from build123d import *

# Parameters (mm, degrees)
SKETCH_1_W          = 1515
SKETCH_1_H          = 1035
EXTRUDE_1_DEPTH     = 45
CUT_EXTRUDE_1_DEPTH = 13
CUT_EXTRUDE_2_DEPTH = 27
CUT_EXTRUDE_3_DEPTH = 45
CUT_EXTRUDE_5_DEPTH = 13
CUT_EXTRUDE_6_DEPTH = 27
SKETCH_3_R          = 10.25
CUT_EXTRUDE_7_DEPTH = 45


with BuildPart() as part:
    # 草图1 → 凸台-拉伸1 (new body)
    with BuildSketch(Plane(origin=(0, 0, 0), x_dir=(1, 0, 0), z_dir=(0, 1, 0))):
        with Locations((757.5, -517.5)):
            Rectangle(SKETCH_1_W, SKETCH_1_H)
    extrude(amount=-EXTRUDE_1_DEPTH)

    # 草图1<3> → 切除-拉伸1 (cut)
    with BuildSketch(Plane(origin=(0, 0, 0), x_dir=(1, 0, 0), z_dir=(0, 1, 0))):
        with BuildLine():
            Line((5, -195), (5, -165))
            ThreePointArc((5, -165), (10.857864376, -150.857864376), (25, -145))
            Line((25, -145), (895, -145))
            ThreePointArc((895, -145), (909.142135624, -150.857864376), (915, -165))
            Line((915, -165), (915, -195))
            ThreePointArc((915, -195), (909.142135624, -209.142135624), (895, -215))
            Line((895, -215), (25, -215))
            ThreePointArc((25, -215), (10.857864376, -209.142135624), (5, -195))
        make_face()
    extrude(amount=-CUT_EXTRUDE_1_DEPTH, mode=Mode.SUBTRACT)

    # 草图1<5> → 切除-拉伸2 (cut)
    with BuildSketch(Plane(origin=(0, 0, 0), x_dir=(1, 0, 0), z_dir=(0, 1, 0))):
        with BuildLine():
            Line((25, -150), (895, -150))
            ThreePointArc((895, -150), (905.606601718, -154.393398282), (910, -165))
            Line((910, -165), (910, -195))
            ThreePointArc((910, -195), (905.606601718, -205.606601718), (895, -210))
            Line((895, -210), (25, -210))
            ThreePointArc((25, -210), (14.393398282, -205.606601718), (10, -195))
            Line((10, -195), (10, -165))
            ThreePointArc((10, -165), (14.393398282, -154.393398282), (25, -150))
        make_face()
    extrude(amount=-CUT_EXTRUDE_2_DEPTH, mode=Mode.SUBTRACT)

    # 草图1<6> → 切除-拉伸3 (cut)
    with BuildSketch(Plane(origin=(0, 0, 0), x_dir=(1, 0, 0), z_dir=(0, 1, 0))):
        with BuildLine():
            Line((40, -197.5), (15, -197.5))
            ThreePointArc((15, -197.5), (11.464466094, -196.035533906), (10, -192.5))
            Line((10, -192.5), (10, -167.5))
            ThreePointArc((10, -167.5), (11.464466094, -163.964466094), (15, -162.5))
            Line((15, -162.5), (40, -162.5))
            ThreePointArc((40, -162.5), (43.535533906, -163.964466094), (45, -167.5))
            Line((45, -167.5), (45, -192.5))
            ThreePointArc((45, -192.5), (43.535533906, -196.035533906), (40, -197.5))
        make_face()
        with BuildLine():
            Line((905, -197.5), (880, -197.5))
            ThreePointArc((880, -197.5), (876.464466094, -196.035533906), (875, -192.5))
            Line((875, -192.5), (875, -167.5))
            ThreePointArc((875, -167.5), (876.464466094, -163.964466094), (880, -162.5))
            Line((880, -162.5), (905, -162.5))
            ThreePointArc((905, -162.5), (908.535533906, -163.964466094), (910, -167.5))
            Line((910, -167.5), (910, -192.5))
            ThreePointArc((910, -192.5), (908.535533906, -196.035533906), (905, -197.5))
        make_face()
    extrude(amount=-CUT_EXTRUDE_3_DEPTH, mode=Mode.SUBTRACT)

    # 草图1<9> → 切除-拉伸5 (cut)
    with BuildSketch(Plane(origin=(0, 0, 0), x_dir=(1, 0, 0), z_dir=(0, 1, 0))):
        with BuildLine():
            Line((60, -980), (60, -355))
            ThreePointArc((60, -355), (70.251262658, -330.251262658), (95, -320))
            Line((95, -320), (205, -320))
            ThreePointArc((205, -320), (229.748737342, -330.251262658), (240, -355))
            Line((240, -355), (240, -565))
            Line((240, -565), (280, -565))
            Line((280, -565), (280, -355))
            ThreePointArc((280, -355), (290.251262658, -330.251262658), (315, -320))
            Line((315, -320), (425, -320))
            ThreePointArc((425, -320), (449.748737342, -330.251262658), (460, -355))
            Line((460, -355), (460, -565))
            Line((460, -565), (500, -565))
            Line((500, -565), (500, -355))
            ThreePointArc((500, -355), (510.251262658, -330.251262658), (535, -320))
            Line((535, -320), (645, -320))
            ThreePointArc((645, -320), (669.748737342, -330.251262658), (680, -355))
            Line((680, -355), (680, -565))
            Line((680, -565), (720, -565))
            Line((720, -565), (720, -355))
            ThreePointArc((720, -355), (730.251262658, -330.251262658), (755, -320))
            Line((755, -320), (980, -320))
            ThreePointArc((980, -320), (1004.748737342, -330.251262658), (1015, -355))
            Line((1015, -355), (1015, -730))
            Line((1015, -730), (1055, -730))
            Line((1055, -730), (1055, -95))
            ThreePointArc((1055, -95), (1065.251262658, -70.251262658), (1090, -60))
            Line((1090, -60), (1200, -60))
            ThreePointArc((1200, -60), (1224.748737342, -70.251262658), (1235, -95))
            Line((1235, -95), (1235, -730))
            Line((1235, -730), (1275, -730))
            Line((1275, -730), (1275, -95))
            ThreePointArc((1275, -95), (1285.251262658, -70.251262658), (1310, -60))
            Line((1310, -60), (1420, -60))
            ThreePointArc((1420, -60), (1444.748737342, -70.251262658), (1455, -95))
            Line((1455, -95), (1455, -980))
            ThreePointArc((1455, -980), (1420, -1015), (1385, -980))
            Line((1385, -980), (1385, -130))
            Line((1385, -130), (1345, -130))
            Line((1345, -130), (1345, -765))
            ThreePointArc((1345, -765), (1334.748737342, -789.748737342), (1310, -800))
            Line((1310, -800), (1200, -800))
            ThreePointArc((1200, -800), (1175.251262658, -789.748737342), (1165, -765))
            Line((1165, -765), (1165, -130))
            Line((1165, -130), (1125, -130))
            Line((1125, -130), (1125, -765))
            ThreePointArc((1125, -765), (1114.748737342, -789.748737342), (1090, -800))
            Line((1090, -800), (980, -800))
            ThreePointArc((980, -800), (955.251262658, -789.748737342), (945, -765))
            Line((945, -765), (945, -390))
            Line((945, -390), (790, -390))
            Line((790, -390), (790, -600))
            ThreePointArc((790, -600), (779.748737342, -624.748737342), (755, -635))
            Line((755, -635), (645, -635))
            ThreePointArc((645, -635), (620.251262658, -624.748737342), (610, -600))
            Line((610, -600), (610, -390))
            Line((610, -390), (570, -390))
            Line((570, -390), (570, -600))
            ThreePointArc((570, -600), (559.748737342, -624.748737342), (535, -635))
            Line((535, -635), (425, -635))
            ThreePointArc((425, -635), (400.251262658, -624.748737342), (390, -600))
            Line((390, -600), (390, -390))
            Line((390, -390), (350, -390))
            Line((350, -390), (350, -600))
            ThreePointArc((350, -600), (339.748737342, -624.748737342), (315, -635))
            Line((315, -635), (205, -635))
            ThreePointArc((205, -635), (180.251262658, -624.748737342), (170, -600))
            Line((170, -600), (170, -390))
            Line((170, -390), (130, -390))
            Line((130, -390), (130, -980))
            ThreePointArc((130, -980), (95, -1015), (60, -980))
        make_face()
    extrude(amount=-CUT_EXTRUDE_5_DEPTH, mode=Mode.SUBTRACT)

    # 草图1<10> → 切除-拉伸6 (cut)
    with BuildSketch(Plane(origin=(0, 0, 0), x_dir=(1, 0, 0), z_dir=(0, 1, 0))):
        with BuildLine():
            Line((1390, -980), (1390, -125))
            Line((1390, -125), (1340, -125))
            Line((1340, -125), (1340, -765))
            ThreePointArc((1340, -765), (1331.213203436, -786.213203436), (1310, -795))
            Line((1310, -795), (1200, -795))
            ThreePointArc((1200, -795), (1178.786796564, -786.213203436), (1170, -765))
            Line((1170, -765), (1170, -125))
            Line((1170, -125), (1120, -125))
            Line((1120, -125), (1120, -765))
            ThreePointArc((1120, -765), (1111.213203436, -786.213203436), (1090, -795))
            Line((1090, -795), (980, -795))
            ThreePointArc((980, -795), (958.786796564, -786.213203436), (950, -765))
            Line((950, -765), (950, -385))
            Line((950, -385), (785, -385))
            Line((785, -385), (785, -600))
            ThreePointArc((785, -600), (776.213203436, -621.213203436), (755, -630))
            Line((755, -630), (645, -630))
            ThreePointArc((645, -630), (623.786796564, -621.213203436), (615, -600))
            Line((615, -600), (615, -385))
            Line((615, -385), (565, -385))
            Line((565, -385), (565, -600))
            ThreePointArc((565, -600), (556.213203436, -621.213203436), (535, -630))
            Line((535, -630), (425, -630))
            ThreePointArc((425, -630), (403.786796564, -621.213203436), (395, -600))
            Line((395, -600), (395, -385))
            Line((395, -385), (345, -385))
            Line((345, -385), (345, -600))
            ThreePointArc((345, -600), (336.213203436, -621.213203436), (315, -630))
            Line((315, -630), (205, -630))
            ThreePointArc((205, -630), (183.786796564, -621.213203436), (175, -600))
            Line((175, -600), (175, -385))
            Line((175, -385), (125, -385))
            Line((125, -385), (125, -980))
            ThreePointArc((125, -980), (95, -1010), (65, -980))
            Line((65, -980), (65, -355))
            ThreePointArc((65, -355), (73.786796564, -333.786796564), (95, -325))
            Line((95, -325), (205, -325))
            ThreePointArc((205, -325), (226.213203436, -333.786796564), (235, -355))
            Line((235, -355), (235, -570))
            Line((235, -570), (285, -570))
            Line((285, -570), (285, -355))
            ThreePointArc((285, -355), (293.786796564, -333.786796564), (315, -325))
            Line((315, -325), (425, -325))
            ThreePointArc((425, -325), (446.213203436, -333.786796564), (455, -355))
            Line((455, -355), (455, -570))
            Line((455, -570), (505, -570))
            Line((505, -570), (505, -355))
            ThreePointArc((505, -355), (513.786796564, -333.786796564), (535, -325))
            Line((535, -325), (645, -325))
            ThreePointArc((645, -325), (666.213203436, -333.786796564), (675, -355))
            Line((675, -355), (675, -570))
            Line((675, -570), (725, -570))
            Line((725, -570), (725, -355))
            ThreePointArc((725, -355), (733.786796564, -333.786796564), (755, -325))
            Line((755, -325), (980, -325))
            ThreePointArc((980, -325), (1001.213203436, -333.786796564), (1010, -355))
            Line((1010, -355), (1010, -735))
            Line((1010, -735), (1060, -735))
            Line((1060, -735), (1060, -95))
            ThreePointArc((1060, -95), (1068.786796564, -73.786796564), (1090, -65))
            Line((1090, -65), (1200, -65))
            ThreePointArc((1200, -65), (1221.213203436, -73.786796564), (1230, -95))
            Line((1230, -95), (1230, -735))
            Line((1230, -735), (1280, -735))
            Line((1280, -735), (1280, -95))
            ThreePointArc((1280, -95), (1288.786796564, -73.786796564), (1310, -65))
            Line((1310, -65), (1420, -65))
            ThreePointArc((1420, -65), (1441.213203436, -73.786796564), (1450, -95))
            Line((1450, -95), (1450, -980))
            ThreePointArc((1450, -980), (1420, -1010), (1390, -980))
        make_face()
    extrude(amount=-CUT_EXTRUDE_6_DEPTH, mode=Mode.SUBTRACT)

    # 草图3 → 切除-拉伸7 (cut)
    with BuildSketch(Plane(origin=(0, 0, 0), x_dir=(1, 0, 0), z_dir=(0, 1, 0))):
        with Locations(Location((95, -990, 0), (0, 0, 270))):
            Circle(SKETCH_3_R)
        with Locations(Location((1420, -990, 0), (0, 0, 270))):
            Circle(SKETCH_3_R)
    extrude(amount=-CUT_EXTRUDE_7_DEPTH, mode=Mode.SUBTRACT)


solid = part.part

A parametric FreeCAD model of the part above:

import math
import FreeCAD as App
import Part
import Sketcher

V = App.Vector
Q = App.Units.Quantity


def add_polygon(sketch, points):
    """Adds a closed chain of lines whose ends are joined by coincident constraints."""
    first, n = sketch.GeometryCount, len(points)
    for a, b in zip(points, points[1:] + points[:1]):
        sketch.addGeometry(Part.LineSegment(App.Vector(*a, 0), App.Vector(*b, 0)), False)
    for i in range(n):
        sketch.addConstraint(Sketcher.Constraint("Coincident", first + i, 2, first + (i + 1) % n, 1))

doc = App.newDocument("Part")
body = doc.addObject("PartDesign::Body", "Body")

# Sketch on XZ plane
sketch1 = body.newObject("Sketcher::SketchObject", "Sketch")
sketch1.AttachmentSupport = (doc.getObject("XZ_Plane"), [""])
sketch1.MapMode = "FlatFace"
add_polygon(sketch1, [(0, 0), (0, 1035), (1515, 1035), (1515, 0)])  # lines 0-3
sketch1.addConstraint([
    Sketcher.Constraint("Vertical", 0),
    Sketcher.Constraint("Horizontal", 1),
    Sketcher.Constraint("Vertical", 2),
    Sketcher.Constraint("Horizontal", 3),
    Sketcher.Constraint("Coincident", 3, 2, -1, 1),
    Sketcher.Constraint("DistanceX", 1, 1, 1, 2, Q("1515 mm")),
    Sketcher.Constraint("DistanceY", 0, 1, 0, 2, Q("1035 mm")),
])
pad1 = body.newObject("PartDesign::Pad", "Pad")
pad1.Profile = sketch1
pad1.Length = 45

# Sketch on XZ plane
sketch2 = body.newObject("Sketcher::SketchObject", "Sketch001")
sketch2.AttachmentSupport = (doc.getObject("XZ_Plane"), [""])
sketch2.MapMode = "FlatFace"
sketch2.addGeometry([
    Part.LineSegment(V(5, 165, 0), V(5, 195, 0)),  # 0
    Part.ArcOfCircle(Part.Circle(V(25, 195, 0), V(0, 0, 1), 20), math.radians(90), math.radians(180)),  # 1
    Part.LineSegment(V(25, 215, 0), V(895, 215, 0)),  # 2
    Part.ArcOfCircle(Part.Circle(V(895, 195, 0), V(0, 0, 1), 20), math.radians(0), math.radians(90)),  # 3
    Part.LineSegment(V(915, 195, 0), V(915, 165, 0)),  # 4
    Part.ArcOfCircle(Part.Circle(V(895, 165, 0), V(0, 0, 1), 20), math.radians(-90), math.radians(0)),  # 5
    Part.LineSegment(V(895, 145, 0), V(25, 145, 0)),  # 6
    Part.ArcOfCircle(Part.Circle(V(25, 165, 0), V(0, 0, 1), 20), math.radians(180), math.radians(270)),  # 7
], False)
sketch2.addConstraint([
    Sketcher.Constraint("Tangent", 0, 2, 1, 2),
    Sketcher.Constraint("Tangent", 1, 1, 2, 1),
    Sketcher.Constraint("Tangent", 2, 2, 3, 2),
    Sketcher.Constraint("Tangent", 3, 1, 4, 1),
    Sketcher.Constraint("Tangent", 4, 2, 5, 2),
    Sketcher.Constraint("Tangent", 5, 1, 6, 1),
    Sketcher.Constraint("Tangent", 6, 2, 7, 2),
    Sketcher.Constraint("Tangent", 7, 1, 0, 1),
    Sketcher.Constraint("Vertical", 0),
    Sketcher.Constraint("Horizontal", 2),
    Sketcher.Constraint("Vertical", 4),
    Sketcher.Constraint("Horizontal", 6),
    Sketcher.Constraint("Equal", 1, 3),
    Sketcher.Constraint("Equal", 3, 5),
    Sketcher.Constraint("Equal", 5, 7),
    Sketcher.Constraint("Radius", 1, Q("20 mm")),
    Sketcher.Constraint("DistanceX", 2, 1, 2, 2, Q("870 mm")),
    Sketcher.Constraint("DistanceY", 0, 1, 0, 2, Q("30 mm")),
    Sketcher.Constraint("DistanceX", -1, 1, 1, 3, Q("25 mm")),
    Sketcher.Constraint("DistanceY", -1, 1, 1, 3, Q("195 mm")),
])
pocket1 = body.newObject("PartDesign::Pocket", "Pocket")
pocket1.Profile = sketch2
pocket1.Length = 13
pocket1.Reversed = True

# Sketch on XZ plane
sketch3 = body.newObject("Sketcher::SketchObject", "Sketch002")
sketch3.AttachmentSupport = (doc.getObject("XZ_Plane"), [""])
sketch3.MapMode = "FlatFace"
sketch3.addGeometry([
    Part.LineSegment(V(895, 150, 0), V(25, 150, 0)),  # 0
    Part.ArcOfCircle(Part.Circle(V(25, 165, 0), V(0, 0, 1), 15), math.radians(180), math.radians(270)),  # 1
    Part.LineSegment(V(10, 165, 0), V(10, 195, 0)),  # 2
    Part.ArcOfCircle(Part.Circle(V(25, 195, 0), V(0, 0, 1), 15), math.radians(90), math.radians(180)),  # 3
    Part.LineSegment(V(25, 210, 0), V(895, 210, 0)),  # 4
    Part.ArcOfCircle(Part.Circle(V(895, 195, 0), V(0, 0, 1), 15), math.radians(0), math.radians(90)),  # 5
    Part.LineSegment(V(910, 195, 0), V(910, 165, 0)),  # 6
    Part.ArcOfCircle(Part.Circle(V(895, 165, 0), V(0, 0, 1), 15), math.radians(-90), math.radians(0)),  # 7
], False)
sketch3.addConstraint([
    Sketcher.Constraint("Tangent", 0, 2, 1, 2),
    Sketcher.Constraint("Tangent", 1, 1, 2, 1),
    Sketcher.Constraint("Tangent", 2, 2, 3, 2),
    Sketcher.Constraint("Tangent", 3, 1, 4, 1),
    Sketcher.Constraint("Tangent", 4, 2, 5, 2),
    Sketcher.Constraint("Tangent", 5, 1, 6, 1),
    Sketcher.Constraint("Tangent", 6, 2, 7, 2),
    Sketcher.Constraint("Tangent", 7, 1, 0, 1),
    Sketcher.Constraint("Horizontal", 0),
    Sketcher.Constraint("Vertical", 2),
    Sketcher.Constraint("Horizontal", 4),
    Sketcher.Constraint("Vertical", 6),
    Sketcher.Constraint("Equal", 1, 3),
    Sketcher.Constraint("Equal", 3, 5),
    Sketcher.Constraint("Equal", 5, 7),
    Sketcher.Constraint("Radius", 1, Q("15 mm")),
    Sketcher.Constraint("DistanceX", 0, 2, 0, 1, Q("870 mm")),
    Sketcher.Constraint("DistanceY", 2, 1, 2, 2, Q("30 mm")),
    Sketcher.Constraint("DistanceX", -1, 1, 1, 3, Q("25 mm")),
    Sketcher.Constraint("DistanceY", -1, 1, 1, 3, Q("165 mm")),
])
pocket2 = body.newObject("PartDesign::Pocket", "Pocket001")
pocket2.Profile = sketch3
pocket2.Length = 27
pocket2.Reversed = True

# Sketch on XZ plane
sketch4 = body.newObject("Sketcher::SketchObject", "Sketch003")
sketch4.AttachmentSupport = (doc.getObject("XZ_Plane"), [""])
sketch4.MapMode = "FlatFace"
sketch4.addGeometry([
    Part.LineSegment(V(15, 198, 0), V(40, 198, 0)),  # 0
    Part.ArcOfCircle(Part.Circle(V(40, 192, 0), V(0, 0, 1), 5), math.radians(0), math.radians(90)),  # 1
    Part.LineSegment(V(45, 192, 0), V(45, 168, 0)),  # 2
    Part.ArcOfCircle(Part.Circle(V(40, 168, 0), V(0, 0, 1), 5), math.radians(-90), math.radians(0)),  # 3
    Part.LineSegment(V(40, 162, 0), V(15, 162, 0)),  # 4
    Part.ArcOfCircle(Part.Circle(V(15, 168, 0), V(0, 0, 1), 5), math.radians(180), math.radians(270)),  # 5
    Part.LineSegment(V(10, 168, 0), V(10, 192, 0)),  # 6
    Part.ArcOfCircle(Part.Circle(V(15, 192, 0), V(0, 0, 1), 5), math.radians(90), math.radians(180)),  # 7
    Part.LineSegment(V(880, 198, 0), V(905, 198, 0)),  # 8
    Part.ArcOfCircle(Part.Circle(V(905, 192, 0), V(0, 0, 1), 5), math.radians(0), math.radians(90)),  # 9
    Part.LineSegment(V(910, 192, 0), V(910, 168, 0)),  # 10
    Part.ArcOfCircle(Part.Circle(V(905, 168, 0), V(0, 0, 1), 5), math.radians(-90), math.radians(0)),  # 11
    Part.LineSegment(V(905, 162, 0), V(880, 162, 0)),  # 12
    Part.ArcOfCircle(Part.Circle(V(880, 168, 0), V(0, 0, 1), 5), math.radians(180), math.radians(270)),  # 13
    Part.LineSegment(V(875, 168, 0), V(875, 192, 0)),  # 14
    Part.ArcOfCircle(Part.Circle(V(880, 192, 0), V(0, 0, 1), 5), math.radians(90), math.radians(180)),  # 15
], False)
sketch4.addConstraint([
    Sketcher.Constraint("Tangent", 0, 2, 1, 2),
    Sketcher.Constraint("Tangent", 1, 1, 2, 1),
    Sketcher.Constraint("Tangent", 2, 2, 3, 2),
    Sketcher.Constraint("Tangent", 3, 1, 4, 1),
    Sketcher.Constraint("Tangent", 4, 2, 5, 2),
    Sketcher.Constraint("Tangent", 5, 1, 6, 1),
    Sketcher.Constraint("Tangent", 6, 2, 7, 2),
    Sketcher.Constraint("Tangent", 7, 1, 0, 1),
    Sketcher.Constraint("Tangent", 8, 2, 9, 2),
    Sketcher.Constraint("Tangent", 9, 1, 10, 1),
    Sketcher.Constraint("Tangent", 10, 2, 11, 2),
    Sketcher.Constraint("Tangent", 11, 1, 12, 1),
    Sketcher.Constraint("Tangent", 12, 2, 13, 2),
    Sketcher.Constraint("Tangent", 13, 1, 14, 1),
    Sketcher.Constraint("Tangent", 14, 2, 15, 2),
    Sketcher.Constraint("Tangent", 15, 1, 8, 1),
    Sketcher.Constraint("Horizontal", 0),
    Sketcher.Constraint("Vertical", 2),
    Sketcher.Constraint("Horizontal", 4),
    Sketcher.Constraint("Vertical", 6),
    Sketcher.Constraint("Horizontal", 8),
    Sketcher.Constraint("Vertical", 10),
    Sketcher.Constraint("Horizontal", 12),
    Sketcher.Constraint("Vertical", 14),
    Sketcher.Constraint("Equal", 1, 3),
    Sketcher.Constraint("Equal", 3, 5),
    Sketcher.Constraint("Equal", 5, 7),
    Sketcher.Constraint("Equal", 7, 9),
    Sketcher.Constraint("Equal", 9, 11),
    Sketcher.Constraint("Equal", 11, 13),
    Sketcher.Constraint("Equal", 13, 15),
    Sketcher.Constraint("Horizontal", 7, 3, 9, 3),
    Sketcher.Constraint("Horizontal", 5, 3, 11, 3),
    Sketcher.Constraint("Equal", 4, 8),
    Sketcher.Constraint("Equal", 12, 2),
    Sketcher.Constraint("Radius", 1, Q("5 mm")),
    Sketcher.Constraint("DistanceX", 0, 1, 0, 2, Q("25 mm")),
    Sketcher.Constraint("DistanceX", -1, 1, 1, 3, Q("40 mm")),
    Sketcher.Constraint("DistanceX", -1, 1, 9, 3, Q("905 mm")),
    Sketcher.Constraint("DistanceY", -1, 1, 1, 3, Q("192.5 mm")),
])
pocket3 = body.newObject("PartDesign::Pocket", "Pocket002")
pocket3.Profile = sketch4
pocket3.Length = 45
pocket3.Reversed = True

# Sketch on XZ plane
sketch5 = body.newObject("Sketcher::SketchObject", "Sketch004")
sketch5.AttachmentSupport = (doc.getObject("XZ_Plane"), [""])
sketch5.MapMode = "FlatFace"
sketch5.addGeometry([
    Part.LineSegment(V(60, 355, 0), V(60, 980, 0)),  # 0
    Part.ArcOfCircle(Part.Circle(V(95, 980, 0), V(0, 0, 1), 35), math.radians(0), math.radians(180)),  # 1
    Part.LineSegment(V(130, 980, 0), V(130, 390, 0)),  # 2
    Part.LineSegment(V(130, 390, 0), V(170, 390, 0)),  # 3
    Part.LineSegment(V(170, 390, 0), V(170, 600, 0)),  # 4
    Part.ArcOfCircle(Part.Circle(V(205, 600, 0), V(0, 0, 1), 35), math.radians(90), math.radians(180)),  # 5
    Part.LineSegment(V(205, 635, 0), V(315, 635, 0)),  # 6
    Part.ArcOfCircle(Part.Circle(V(315, 600, 0), V(0, 0, 1), 35), math.radians(0), math.radians(90)),  # 7
    Part.LineSegment(V(350, 600, 0), V(350, 390, 0)),  # 8
    Part.LineSegment(V(350, 390, 0), V(390, 390, 0)),  # 9
    Part.LineSegment(V(390, 390, 0), V(390, 600, 0)),  # 10
    Part.ArcOfCircle(Part.Circle(V(425, 600, 0), V(0, 0, 1), 35), math.radians(90), math.radians(180)),  # 11
    Part.LineSegment(V(425, 635, 0), V(535, 635, 0)),  # 12
    Part.ArcOfCircle(Part.Circle(V(535, 600, 0), V(0, 0, 1), 35), math.radians(0), math.radians(90)),  # 13
    Part.LineSegment(V(570, 600, 0), V(570, 390, 0)),  # 14
    Part.LineSegment(V(570, 390, 0), V(610, 390, 0)),  # 15
    Part.LineSegment(V(610, 390, 0), V(610, 600, 0)),  # 16
    Part.ArcOfCircle(Part.Circle(V(645, 600, 0), V(0, 0, 1), 35), math.radians(90), math.radians(180)),  # 17
    Part.LineSegment(V(645, 635, 0), V(755, 635, 0)),  # 18
    Part.ArcOfCircle(Part.Circle(V(755, 600, 0), V(0, 0, 1), 35), math.radians(0), math.radians(90)),  # 19
    Part.LineSegment(V(790, 600, 0), V(790, 390, 0)),  # 20
    Part.LineSegment(V(790, 390, 0), V(945, 390, 0)),  # 21
    Part.LineSegment(V(945, 390, 0), V(945, 765, 0)),  # 22
    Part.ArcOfCircle(Part.Circle(V(980, 765, 0), V(0, 0, 1), 35), math.radians(90), math.radians(180)),  # 23
    Part.LineSegment(V(980, 800, 0), V(1090, 800, 0)),  # 24
    Part.ArcOfCircle(Part.Circle(V(1090, 765, 0), V(0, 0, 1), 35), math.radians(0), math.radians(90)),  # 25
    Part.LineSegment(V(1125, 765, 0), V(1125, 130, 0)),  # 26
    Part.LineSegment(V(1125, 130, 0), V(1165, 130, 0)),  # 27
    Part.LineSegment(V(1165, 130, 0), V(1165, 765, 0)),  # 28
    Part.ArcOfCircle(Part.Circle(V(1200, 765, 0), V(0, 0, 1), 35), math.radians(90), math.radians(180)),  # 29
    Part.LineSegment(V(1200, 800, 0), V(1310, 800, 0)),  # 30
    Part.ArcOfCircle(Part.Circle(V(1310, 765, 0), V(0, 0, 1), 35), math.radians(0), math.radians(90)),  # 31
    Part.LineSegment(V(1345, 765, 0), V(1345, 130, 0)),  # 32
    Part.LineSegment(V(1345, 130, 0), V(1385, 130, 0)),  # 33
    Part.LineSegment(V(1385, 130, 0), V(1385, 980, 0)),  # 34
    Part.ArcOfCircle(Part.Circle(V(1420, 980, 0), V(0, 0, 1), 35), math.radians(0), math.radians(180)),  # 35
    Part.LineSegment(V(1455, 980, 0), V(1455, 95, 0)),  # 36
    Part.ArcOfCircle(Part.Circle(V(1420, 95, 0), V(0, 0, 1), 35), math.radians(-90), math.radians(0)),  # 37
    Part.LineSegment(V(1420, 60, 0), V(1310, 60, 0)),  # 38
    Part.ArcOfCircle(Part.Circle(V(1310, 95, 0), V(0, 0, 1), 35), math.radians(180), math.radians(270)),  # 39
    Part.LineSegment(V(1275, 95, 0), V(1275, 730, 0)),  # 40
    Part.LineSegment(V(1275, 730, 0), V(1235, 730, 0)),  # 41
    Part.LineSegment(V(1235, 730, 0), V(1235, 95, 0)),  # 42
    Part.ArcOfCircle(Part.Circle(V(1200, 95, 0), V(0, 0, 1), 35), math.radians(-90), math.radians(0)),  # 43
    Part.LineSegment(V(1200, 60, 0), V(1090, 60, 0)),  # 44
    Part.ArcOfCircle(Part.Circle(V(1090, 95, 0), V(0, 0, 1), 35), math.radians(180), math.radians(270)),  # 45
    Part.LineSegment(V(1055, 95, 0), V(1055, 730, 0)),  # 46
    Part.LineSegment(V(1055, 730, 0), V(1015, 730, 0)),  # 47
    Part.LineSegment(V(1015, 730, 0), V(1015, 355, 0)),  # 48
    Part.ArcOfCircle(Part.Circle(V(980, 355, 0), V(0, 0, 1), 35), math.radians(-90), math.radians(0)),  # 49
    Part.LineSegment(V(980, 320, 0), V(755, 320, 0)),  # 50
    Part.ArcOfCircle(Part.Circle(V(755, 355, 0), V(0, 0, 1), 35), math.radians(180), math.radians(270)),  # 51
    Part.LineSegment(V(720, 355, 0), V(720, 565, 0)),  # 52
    Part.LineSegment(V(720, 565, 0), V(680, 565, 0)),  # 53
    Part.LineSegment(V(680, 565, 0), V(680, 355, 0)),  # 54
    Part.ArcOfCircle(Part.Circle(V(645, 355, 0), V(0, 0, 1), 35), math.radians(-90), math.radians(0)),  # 55
    Part.LineSegment(V(645, 320, 0), V(535, 320, 0)),  # 56
    Part.ArcOfCircle(Part.Circle(V(535, 355, 0), V(0, 0, 1), 35), math.radians(180), math.radians(270)),  # 57
    Part.LineSegment(V(500, 355, 0), V(500, 565, 0)),  # 58
    Part.LineSegment(V(500, 565, 0), V(460, 565, 0)),  # 59
    Part.LineSegment(V(460, 565, 0), V(460, 355, 0)),  # 60
    Part.ArcOfCircle(Part.Circle(V(425, 355, 0), V(0, 0, 1), 35), math.radians(-90), math.radians(0)),  # 61
    Part.LineSegment(V(425, 320, 0), V(315, 320, 0)),  # 62
    Part.ArcOfCircle(Part.Circle(V(315, 355, 0), V(0, 0, 1), 35), math.radians(180), math.radians(270)),  # 63
    Part.LineSegment(V(280, 355, 0), V(280, 565, 0)),  # 64
    Part.LineSegment(V(280, 565, 0), V(240, 565, 0)),  # 65
    Part.LineSegment(V(240, 565, 0), V(240, 355, 0)),  # 66
    Part.ArcOfCircle(Part.Circle(V(205, 355, 0), V(0, 0, 1), 35), math.radians(-90), math.radians(0)),  # 67
    Part.LineSegment(V(205, 320, 0), V(95, 320, 0)),  # 68
    Part.ArcOfCircle(Part.Circle(V(95, 355, 0), V(0, 0, 1), 35), math.radians(180), math.radians(270)),  # 69
], False)
sketch5.addConstraint([
    Sketcher.Constraint("Tangent", 0, 2, 1, 2),
    Sketcher.Constraint("Tangent", 1, 1, 2, 1),
    Sketcher.Constraint("Coincident", 2, 2, 3, 1),
    Sketcher.Constraint("Coincident", 3, 2, 4, 1),
    Sketcher.Constraint("Tangent", 4, 2, 5, 2),
    Sketcher.Constraint("Tangent", 5, 1, 6, 1),
    Sketcher.Constraint("Tangent", 6, 2, 7, 2),
    Sketcher.Constraint("Tangent", 7, 1, 8, 1),
    Sketcher.Constraint("Coincident", 8, 2, 9, 1),
    Sketcher.Constraint("Coincident", 9, 2, 10, 1),
    Sketcher.Constraint("Tangent", 10, 2, 11, 2),
    Sketcher.Constraint("Tangent", 11, 1, 12, 1),
    Sketcher.Constraint("Tangent", 12, 2, 13, 2),
    Sketcher.Constraint("Tangent", 13, 1, 14, 1),
    Sketcher.Constraint("Coincident", 14, 2, 15, 1),
    Sketcher.Constraint("Coincident", 15, 2, 16, 1),
    Sketcher.Constraint("Tangent", 16, 2, 17, 2),
    Sketcher.Constraint("Tangent", 17, 1, 18, 1),
    Sketcher.Constraint("Tangent", 18, 2, 19, 2),
    Sketcher.Constraint("Tangent", 19, 1, 20, 1),
    Sketcher.Constraint("Coincident", 20, 2, 21, 1),
    Sketcher.Constraint("Coincident", 21, 2, 22, 1),
    Sketcher.Constraint("Tangent", 22, 2, 23, 2),
    Sketcher.Constraint("Tangent", 23, 1, 24, 1),
    Sketcher.Constraint("Tangent", 24, 2, 25, 2),
    Sketcher.Constraint("Tangent", 25, 1, 26, 1),
    Sketcher.Constraint("Coincident", 26, 2, 27, 1),
    Sketcher.Constraint("Coincident", 27, 2, 28, 1),
    Sketcher.Constraint("Tangent", 28, 2, 29, 2),
    Sketcher.Constraint("Tangent", 29, 1, 30, 1),
    Sketcher.Constraint("Tangent", 30, 2, 31, 2),
    Sketcher.Constraint("Tangent", 31, 1, 32, 1),
    Sketcher.Constraint("Coincident", 32, 2, 33, 1),
    Sketcher.Constraint("Coincident", 33, 2, 34, 1),
    Sketcher.Constraint("Tangent", 34, 2, 35, 2),
    Sketcher.Constraint("Tangent", 35, 1, 36, 1),
    Sketcher.Constraint("Tangent", 36, 2, 37, 2),
    Sketcher.Constraint("Tangent", 37, 1, 38, 1),
    Sketcher.Constraint("Tangent", 38, 2, 39, 2),
    Sketcher.Constraint("Tangent", 39, 1, 40, 1),
    Sketcher.Constraint("Coincident", 40, 2, 41, 1),
    Sketcher.Constraint("Coincident", 41, 2, 42, 1),
    Sketcher.Constraint("Tangent", 42, 2, 43, 2),
    Sketcher.Constraint("Tangent", 43, 1, 44, 1),
    Sketcher.Constraint("Tangent", 44, 2, 45, 2),
    Sketcher.Constraint("Tangent", 45, 1, 46, 1),
    Sketcher.Constraint("Coincident", 46, 2, 47, 1),
    Sketcher.Constraint("Coincident", 47, 2, 48, 1),
    Sketcher.Constraint("Tangent", 48, 2, 49, 2),
    Sketcher.Constraint("Tangent", 49, 1, 50, 1),
    Sketcher.Constraint("Tangent", 50, 2, 51, 2),
    Sketcher.Constraint("Tangent", 51, 1, 52, 1),
    Sketcher.Constraint("Coincident", 52, 2, 53, 1),
    Sketcher.Constraint("Coincident", 53, 2, 54, 1),
    Sketcher.Constraint("Tangent", 54, 2, 55, 2),
    Sketcher.Constraint("Tangent", 55, 1, 56, 1),
    Sketcher.Constraint("Tangent", 56, 2, 57, 2),
    Sketcher.Constraint("Tangent", 57, 1, 58, 1),
    Sketcher.Constraint("Coincident", 58, 2, 59, 1),
    Sketcher.Constraint("Coincident", 59, 2, 60, 1),
    Sketcher.Constraint("Tangent", 60, 2, 61, 2),
    Sketcher.Constraint("Tangent", 61, 1, 62, 1),
    Sketcher.Constraint("Tangent", 62, 2, 63, 2),
    Sketcher.Constraint("Tangent", 63, 1, 64, 1),
    Sketcher.Constraint("Coincident", 64, 2, 65, 1),
    Sketcher.Constraint("Coincident", 65, 2, 66, 1),
    Sketcher.Constraint("Tangent", 66, 2, 67, 2),
    Sketcher.Constraint("Tangent", 67, 1, 68, 1),
    Sketcher.Constraint("Tangent", 68, 2, 69, 2),
    Sketcher.Constraint("Tangent", 69, 1, 0, 1),
    Sketcher.Constraint("Vertical", 0),
    Sketcher.Constraint("Vertical", 2),
    Sketcher.Constraint("Horizontal", 3),
    Sketcher.Constraint("Vertical", 4),
    Sketcher.Constraint("Horizontal", 6),
    Sketcher.Constraint("Vertical", 8),
    Sketcher.Constraint("Horizontal", 9),
    Sketcher.Constraint("Vertical", 10),
    Sketcher.Constraint("Horizontal", 12),
    Sketcher.Constraint("Vertical", 14),
    Sketcher.Constraint("Horizontal", 15),
    Sketcher.Constraint("Vertical", 16),
    Sketcher.Constraint("Horizontal", 18),
    Sketcher.Constraint("Vertical", 20),
    Sketcher.Constraint("Horizontal", 21),
    Sketcher.Constraint("Vertical", 22),
    Sketcher.Constraint("Horizontal", 24),
    Sketcher.Constraint("Vertical", 26),
    Sketcher.Constraint("Horizontal", 27),
    Sketcher.Constraint("Vertical", 28),
    Sketcher.Constraint("Horizontal", 30),
    Sketcher.Constraint("Vertical", 32),
    Sketcher.Constraint("Horizontal", 33),
    Sketcher.Constraint("Vertical", 34),
    Sketcher.Constraint("Vertical", 36),
    Sketcher.Constraint("Horizontal", 38),
    Sketcher.Constraint("Vertical", 40),
    Sketcher.Constraint("Horizontal", 41),
    Sketcher.Constraint("Vertical", 42),
    Sketcher.Constraint("Horizontal", 44),
    Sketcher.Constraint("Vertical", 46),
    Sketcher.Constraint("Horizontal", 47),
    Sketcher.Constraint("Vertical", 48),
    Sketcher.Constraint("Horizontal", 50),
    Sketcher.Constraint("Vertical", 52),
    Sketcher.Constraint("Horizontal", 53),
    Sketcher.Constraint("Vertical", 54),
    Sketcher.Constraint("Horizontal", 56),
    Sketcher.Constraint("Vertical", 58),
    Sketcher.Constraint("Horizontal", 59),
    Sketcher.Constraint("Vertical", 60),
    Sketcher.Constraint("Horizontal", 62),
    Sketcher.Constraint("Vertical", 64),
    Sketcher.Constraint("Horizontal", 65),
    Sketcher.Constraint("Vertical", 66),
    Sketcher.Constraint("Horizontal", 68),
    Sketcher.Constraint("Equal", 1, 5),
    Sketcher.Constraint("Equal", 5, 7),
    Sketcher.Constraint("Equal", 7, 11),
    Sketcher.Constraint("Equal", 11, 13),
    Sketcher.Constraint("Equal", 13, 17),
    Sketcher.Constraint("Equal", 17, 19),
    Sketcher.Constraint("Equal", 19, 23),
    Sketcher.Constraint("Equal", 23, 25),
    Sketcher.Constraint("Equal", 25, 29),
    Sketcher.Constraint("Equal", 29, 31),
    Sketcher.Constraint("Equal", 31, 35),
    Sketcher.Constraint("Equal", 35, 37),
    Sketcher.Constraint("Equal", 37, 39),
    Sketcher.Constraint("Equal", 39, 43),
    Sketcher.Constraint("Equal", 43, 45),
    Sketcher.Constraint("Equal", 45, 49),
    Sketcher.Constraint("Equal", 49, 51),
    Sketcher.Constraint("Equal", 51, 55),
    Sketcher.Constraint("Equal", 55, 57),
    Sketcher.Constraint("Equal", 57, 61),
    Sketcher.Constraint("Equal", 61, 63),
    Sketcher.Constraint("Equal", 63, 67),
    Sketcher.Constraint("Equal", 67, 69),
    Sketcher.Constraint("Horizontal", 7, 3, 11, 3),
    Sketcher.Constraint("Horizontal", 13, 3, 17, 3),
    Sketcher.Constraint("Horizontal", 25, 3, 29, 3),
    Sketcher.Constraint("Horizontal", 1, 3, 35, 3),
    Sketcher.Constraint("Horizontal", 39, 3, 43, 3),
    Sketcher.Constraint("Horizontal", 51, 3, 55, 3),
    Sketcher.Constraint("Horizontal", 57, 3, 61, 3),
    Sketcher.Constraint("Horizontal", 63, 3, 67, 3),
    Sketcher.Constraint("Horizontal", 3, 2, 8, 2),
    Sketcher.Constraint("Horizontal", 9, 2, 14, 2),
    Sketcher.Constraint("Horizontal", 15, 2, 20, 2),
    Sketcher.Constraint("Horizontal", 27, 2, 32, 2),
    Sketcher.Constraint("Horizontal", 41, 2, 46, 2),
    Sketcher.Constraint("Horizontal", 53, 2, 58, 2),
    Sketcher.Constraint("Horizontal", 59, 2, 64, 2),
    Sketcher.Constraint("Vertical", 31, 3, 39, 3),
    Sketcher.Constraint("Vertical", 29, 3, 43, 3),
    Sketcher.Constraint("Vertical", 25, 3, 45, 3),
    Sketcher.Constraint("Vertical", 23, 3, 49, 3),
    Sketcher.Constraint("Vertical", 19, 3, 51, 3),
    Sketcher.Constraint("Vertical", 17, 3, 55, 3),
    Sketcher.Constraint("Vertical", 13, 3, 57, 3),
    Sketcher.Constraint("Vertical", 11, 3, 61, 3),
    Sketcher.Constraint("Vertical", 7, 3, 63, 3),
    Sketcher.Constraint("Vertical", 5, 3, 67, 3),
    Sketcher.Constraint("Equal", 3, 9),
    Sketcher.Constraint("Equal", 6, 12),
    Sketcher.Constraint("Equal", 9, 15),
    Sketcher.Constraint("Equal", 12, 18),
    Sketcher.Constraint("Equal", 18, 24),
    Sketcher.Constraint("Equal", 15, 27),
    Sketcher.Constraint("Equal", 24, 30),
    Sketcher.Constraint("Equal", 27, 33),
    Sketcher.Constraint("Equal", 30, 38),
    Sketcher.Constraint("Equal", 32, 40),
    Sketcher.Constraint("Equal", 22, 48),
    Sketcher.Constraint("Equal", 20, 52),
    Sketcher.Constraint("Radius", 1, Q("35 mm")),
    Sketcher.Constraint("DistanceX", 3, 1, 3, 2, Q("40 mm")),
    Sketcher.Constraint("DistanceX", 21, 1, 21, 2, Q("155 mm")),
    Sketcher.Constraint("DistanceY", 0, 1, 0, 2, Q("625 mm")),
    Sketcher.Constraint("DistanceY", 2, 2, 2, 1, Q("590 mm")),
    Sketcher.Constraint("DistanceY", 4, 1, 4, 2, Q("210 mm")),
    Sketcher.Constraint("DistanceY", 22, 1, 22, 2, Q("375 mm")),
    Sketcher.Constraint("DistanceY", 26, 2, 26, 1, Q("635 mm")),
    Sketcher.Constraint("DistanceX", -1, 1, 1, 3, Q("95 mm")),
    Sketcher.Constraint("DistanceY", -1, 1, 1, 3, Q("980 mm")),
])
pocket4 = body.newObject("PartDesign::Pocket", "Pocket003")
pocket4.Profile = sketch5
pocket4.Length = 13
pocket4.Reversed = True

# Sketch on XZ plane
sketch6 = body.newObject("Sketcher::SketchObject", "Sketch005")
sketch6.AttachmentSupport = (doc.getObject("XZ_Plane"), [""])
sketch6.MapMode = "FlatFace"
sketch6.addGeometry([
    Part.LineSegment(V(1390, 125, 0), V(1390, 980, 0)),  # 0
    Part.ArcOfCircle(Part.Circle(V(1420, 980, 0), V(0, 0, 1), 30), math.radians(0), math.radians(180)),  # 1
    Part.LineSegment(V(1450, 980, 0), V(1450, 95, 0)),  # 2
    Part.ArcOfCircle(Part.Circle(V(1420, 95, 0), V(0, 0, 1), 30), math.radians(-90), math.radians(0)),  # 3
    Part.LineSegment(V(1420, 65, 0), V(1310, 65, 0)),  # 4
    Part.ArcOfCircle(Part.Circle(V(1310, 95, 0), V(0, 0, 1), 30), math.radians(180), math.radians(270)),  # 5
    Part.LineSegment(V(1280, 95, 0), V(1280, 735, 0)),  # 6
    Part.LineSegment(V(1280, 735, 0), V(1230, 735, 0)),  # 7
    Part.LineSegment(V(1230, 735, 0), V(1230, 95, 0)),  # 8
    Part.ArcOfCircle(Part.Circle(V(1200, 95, 0), V(0, 0, 1), 30), math.radians(-90), math.radians(0)),  # 9
    Part.LineSegment(V(1200, 65, 0), V(1090, 65, 0)),  # 10
    Part.ArcOfCircle(Part.Circle(V(1090, 95, 0), V(0, 0, 1), 30), math.radians(180), math.radians(270)),  # 11
    Part.LineSegment(V(1060, 95, 0), V(1060, 735, 0)),  # 12
    Part.LineSegment(V(1060, 735, 0), V(1010, 735, 0)),  # 13
    Part.LineSegment(V(1010, 735, 0), V(1010, 355, 0)),  # 14
    Part.ArcOfCircle(Part.Circle(V(980, 355, 0), V(0, 0, 1), 30), math.radians(-90), math.radians(0)),  # 15
    Part.LineSegment(V(980, 325, 0), V(755, 325, 0)),  # 16
    Part.ArcOfCircle(Part.Circle(V(755, 355, 0), V(0, 0, 1), 30), math.radians(180), math.radians(270)),  # 17
    Part.LineSegment(V(725, 355, 0), V(725, 570, 0)),  # 18
    Part.LineSegment(V(725, 570, 0), V(675, 570, 0)),  # 19
    Part.LineSegment(V(675, 570, 0), V(675, 355, 0)),  # 20
    Part.ArcOfCircle(Part.Circle(V(645, 355, 0), V(0, 0, 1), 30), math.radians(-90), math.radians(0)),  # 21
    Part.LineSegment(V(645, 325, 0), V(535, 325, 0)),  # 22
    Part.ArcOfCircle(Part.Circle(V(535, 355, 0), V(0, 0, 1), 30), math.radians(180), math.radians(270)),  # 23
    Part.LineSegment(V(505, 355, 0), V(505, 570, 0)),  # 24
    Part.LineSegment(V(505, 570, 0), V(455, 570, 0)),  # 25
    Part.LineSegment(V(455, 570, 0), V(455, 355, 0)),  # 26
    Part.ArcOfCircle(Part.Circle(V(425, 355, 0), V(0, 0, 1), 30), math.radians(-90), math.radians(0)),  # 27
    Part.LineSegment(V(425, 325, 0), V(315, 325, 0)),  # 28
    Part.ArcOfCircle(Part.Circle(V(315, 355, 0), V(0, 0, 1), 30), math.radians(180), math.radians(270)),  # 29
    Part.LineSegment(V(285, 355, 0), V(285, 570, 0)),  # 30
    Part.LineSegment(V(285, 570, 0), V(235, 570, 0)),  # 31
    Part.LineSegment(V(235, 570, 0), V(235, 355, 0)),  # 32
    Part.ArcOfCircle(Part.Circle(V(205, 355, 0), V(0, 0, 1), 30), math.radians(-90), math.radians(0)),  # 33
    Part.LineSegment(V(205, 325, 0), V(95, 325, 0)),  # 34
    Part.ArcOfCircle(Part.Circle(V(95, 355, 0), V(0, 0, 1), 30), math.radians(180), math.radians(270)),  # 35
    Part.LineSegment(V(65, 355, 0), V(65, 980, 0)),  # 36
    Part.ArcOfCircle(Part.Circle(V(95, 980, 0), V(0, 0, 1), 30), math.radians(0), math.radians(180)),  # 37
    Part.LineSegment(V(125, 980, 0), V(125, 385, 0)),  # 38
    Part.LineSegment(V(125, 385, 0), V(175, 385, 0)),  # 39
    Part.LineSegment(V(175, 385, 0), V(175, 600, 0)),  # 40
    Part.ArcOfCircle(Part.Circle(V(205, 600, 0), V(0, 0, 1), 30), math.radians(90), math.radians(180)),  # 41
    Part.LineSegment(V(205, 630, 0), V(315, 630, 0)),  # 42
    Part.ArcOfCircle(Part.Circle(V(315, 600, 0), V(0, 0, 1), 30), math.radians(0), math.radians(90)),  # 43
    Part.LineSegment(V(345, 600, 0), V(345, 385, 0)),  # 44
    Part.LineSegment(V(345, 385, 0), V(395, 385, 0)),  # 45
    Part.LineSegment(V(395, 385, 0), V(395, 600, 0)),  # 46
    Part.ArcOfCircle(Part.Circle(V(425, 600, 0), V(0, 0, 1), 30), math.radians(90), math.radians(180)),  # 47
    Part.LineSegment(V(425, 630, 0), V(535, 630, 0)),  # 48
    Part.ArcOfCircle(Part.Circle(V(535, 600, 0), V(0, 0, 1), 30), math.radians(0), math.radians(90)),  # 49
    Part.LineSegment(V(565, 600, 0), V(565, 385, 0)),  # 50
    Part.LineSegment(V(565, 385, 0), V(615, 385, 0)),  # 51
    Part.LineSegment(V(615, 385, 0), V(615, 600, 0)),  # 52
    Part.ArcOfCircle(Part.Circle(V(645, 600, 0), V(0, 0, 1), 30), math.radians(90), math.radians(180)),  # 53
    Part.LineSegment(V(645, 630, 0), V(755, 630, 0)),  # 54
    Part.ArcOfCircle(Part.Circle(V(755, 600, 0), V(0, 0, 1), 30), math.radians(0), math.radians(90)),  # 55
    Part.LineSegment(V(785, 600, 0), V(785, 385, 0)),  # 56
    Part.LineSegment(V(785, 385, 0), V(950, 385, 0)),  # 57
    Part.LineSegment(V(950, 385, 0), V(950, 765, 0)),  # 58
    Part.ArcOfCircle(Part.Circle(V(980, 765, 0), V(0, 0, 1), 30), math.radians(90), math.radians(180)),  # 59
    Part.LineSegment(V(980, 795, 0), V(1090, 795, 0)),  # 60
    Part.ArcOfCircle(Part.Circle(V(1090, 765, 0), V(0, 0, 1), 30), math.radians(0), math.radians(90)),  # 61
    Part.LineSegment(V(1120, 765, 0), V(1120, 125, 0)),  # 62
    Part.LineSegment(V(1120, 125, 0), V(1170, 125, 0)),  # 63
    Part.LineSegment(V(1170, 125, 0), V(1170, 765, 0)),  # 64
    Part.ArcOfCircle(Part.Circle(V(1200, 765, 0), V(0, 0, 1), 30), math.radians(90), math.radians(180)),  # 65
    Part.LineSegment(V(1200, 795, 0), V(1310, 795, 0)),  # 66
    Part.ArcOfCircle(Part.Circle(V(1310, 765, 0), V(0, 0, 1), 30), math.radians(0), math.radians(90)),  # 67
    Part.LineSegment(V(1340, 765, 0), V(1340, 125, 0)),  # 68
    Part.LineSegment(V(1340, 125, 0), V(1390, 125, 0)),  # 69
], False)
sketch6.addConstraint([
    Sketcher.Constraint("Tangent", 0, 2, 1, 2),
    Sketcher.Constraint("Tangent", 1, 1, 2, 1),
    Sketcher.Constraint("Tangent", 2, 2, 3, 2),
    Sketcher.Constraint("Tangent", 3, 1, 4, 1),
    Sketcher.Constraint("Tangent", 4, 2, 5, 2),
    Sketcher.Constraint("Tangent", 5, 1, 6, 1),
    Sketcher.Constraint("Coincident", 6, 2, 7, 1),
    Sketcher.Constraint("Coincident", 7, 2, 8, 1),
    Sketcher.Constraint("Tangent", 8, 2, 9, 2),
    Sketcher.Constraint("Tangent", 9, 1, 10, 1),
    Sketcher.Constraint("Tangent", 10, 2, 11, 2),
    Sketcher.Constraint("Tangent", 11, 1, 12, 1),
    Sketcher.Constraint("Coincident", 12, 2, 13, 1),
    Sketcher.Constraint("Coincident", 13, 2, 14, 1),
    Sketcher.Constraint("Tangent", 14, 2, 15, 2),
    Sketcher.Constraint("Tangent", 15, 1, 16, 1),
    Sketcher.Constraint("Tangent", 16, 2, 17, 2),
    Sketcher.Constraint("Tangent", 17, 1, 18, 1),
    Sketcher.Constraint("Coincident", 18, 2, 19, 1),
    Sketcher.Constraint("Coincident", 19, 2, 20, 1),
    Sketcher.Constraint("Tangent", 20, 2, 21, 2),
    Sketcher.Constraint("Tangent", 21, 1, 22, 1),
    Sketcher.Constraint("Tangent", 22, 2, 23, 2),
    Sketcher.Constraint("Tangent", 23, 1, 24, 1),
    Sketcher.Constraint("Coincident", 24, 2, 25, 1),
    Sketcher.Constraint("Coincident", 25, 2, 26, 1),
    Sketcher.Constraint("Tangent", 26, 2, 27, 2),
    Sketcher.Constraint("Tangent", 27, 1, 28, 1),
    Sketcher.Constraint("Tangent", 28, 2, 29, 2),
    Sketcher.Constraint("Tangent", 29, 1, 30, 1),
    Sketcher.Constraint("Coincident", 30, 2, 31, 1),
    Sketcher.Constraint("Coincident", 31, 2, 32, 1),
    Sketcher.Constraint("Tangent", 32, 2, 33, 2),
    Sketcher.Constraint("Tangent", 33, 1, 34, 1),
    Sketcher.Constraint("Tangent", 34, 2, 35, 2),
    Sketcher.Constraint("Tangent", 35, 1, 36, 1),
    Sketcher.Constraint("Tangent", 36, 2, 37, 2),
    Sketcher.Constraint("Tangent", 37, 1, 38, 1),
    Sketcher.Constraint("Coincident", 38, 2, 39, 1),
    Sketcher.Constraint("Coincident", 39, 2, 40, 1),
    Sketcher.Constraint("Tangent", 40, 2, 41, 2),
    Sketcher.Constraint("Tangent", 41, 1, 42, 1),
    Sketcher.Constraint("Tangent", 42, 2, 43, 2),
    Sketcher.Constraint("Tangent", 43, 1, 44, 1),
    Sketcher.Constraint("Coincident", 44, 2, 45, 1),
    Sketcher.Constraint("Coincident", 45, 2, 46, 1),
    Sketcher.Constraint("Tangent", 46, 2, 47, 2),
    Sketcher.Constraint("Tangent", 47, 1, 48, 1),
    Sketcher.Constraint("Tangent", 48, 2, 49, 2),
    Sketcher.Constraint("Tangent", 49, 1, 50, 1),
    Sketcher.Constraint("Coincident", 50, 2, 51, 1),
    Sketcher.Constraint("Coincident", 51, 2, 52, 1),
    Sketcher.Constraint("Tangent", 52, 2, 53, 2),
    Sketcher.Constraint("Tangent", 53, 1, 54, 1),
    Sketcher.Constraint("Tangent", 54, 2, 55, 2),
    Sketcher.Constraint("Tangent", 55, 1, 56, 1),
    Sketcher.Constraint("Coincident", 56, 2, 57, 1),
    Sketcher.Constraint("Coincident", 57, 2, 58, 1),
    Sketcher.Constraint("Tangent", 58, 2, 59, 2),
    Sketcher.Constraint("Tangent", 59, 1, 60, 1),
    Sketcher.Constraint("Tangent", 60, 2, 61, 2),
    Sketcher.Constraint("Tangent", 61, 1, 62, 1),
    Sketcher.Constraint("Coincident", 62, 2, 63, 1),
    Sketcher.Constraint("Coincident", 63, 2, 64, 1),
    Sketcher.Constraint("Tangent", 64, 2, 65, 2),
    Sketcher.Constraint("Tangent", 65, 1, 66, 1),
    Sketcher.Constraint("Tangent", 66, 2, 67, 2),
    Sketcher.Constraint("Tangent", 67, 1, 68, 1),
    Sketcher.Constraint("Coincident", 68, 2, 69, 1),
    Sketcher.Constraint("Coincident", 69, 2, 0, 1),
    Sketcher.Constraint("Vertical", 0),
    Sketcher.Constraint("Vertical", 2),
    Sketcher.Constraint("Horizontal", 4),
    Sketcher.Constraint("Vertical", 6),
    Sketcher.Constraint("Horizontal", 7),
    Sketcher.Constraint("Vertical", 8),
    Sketcher.Constraint("Horizontal", 10),
    Sketcher.Constraint("Vertical", 12),
    Sketcher.Constraint("Horizontal", 13),
    Sketcher.Constraint("Vertical", 14),
    Sketcher.Constraint("Horizontal", 16),
    Sketcher.Constraint("Vertical", 18),
    Sketcher.Constraint("Horizontal", 19),
    Sketcher.Constraint("Vertical", 20),
    Sketcher.Constraint("Horizontal", 22),
    Sketcher.Constraint("Vertical", 24),
    Sketcher.Constraint("Horizontal", 25),
    Sketcher.Constraint("Vertical", 26),
    Sketcher.Constraint("Horizontal", 28),
    Sketcher.Constraint("Vertical", 30),
    Sketcher.Constraint("Horizontal", 31),
    Sketcher.Constraint("Vertical", 32),
    Sketcher.Constraint("Horizontal", 34),
    Sketcher.Constraint("Vertical", 36),
    Sketcher.Constraint("Vertical", 38),
    Sketcher.Constraint("Horizontal", 39),
    Sketcher.Constraint("Vertical", 40),
    Sketcher.Constraint("Horizontal", 42),
    Sketcher.Constraint("Vertical", 44),
    Sketcher.Constraint("Horizontal", 45),
    Sketcher.Constraint("Vertical", 46),
    Sketcher.Constraint("Horizontal", 48),
    Sketcher.Constraint("Vertical", 50),
    Sketcher.Constraint("Horizontal", 51),
    Sketcher.Constraint("Vertical", 52),
    Sketcher.Constraint("Horizontal", 54),
    Sketcher.Constraint("Vertical", 56),
    Sketcher.Constraint("Horizontal", 57),
    Sketcher.Constraint("Vertical", 58),
    Sketcher.Constraint("Horizontal", 60),
    Sketcher.Constraint("Vertical", 62),
    Sketcher.Constraint("Horizontal", 63),
    Sketcher.Constraint("Vertical", 64),
    Sketcher.Constraint("Horizontal", 66),
    Sketcher.Constraint("Vertical", 68),
    Sketcher.Constraint("Horizontal", 69),
    Sketcher.Constraint("Equal", 1, 3),
    Sketcher.Constraint("Equal", 3, 5),
    Sketcher.Constraint("Equal", 5, 9),
    Sketcher.Constraint("Equal", 9, 11),
    Sketcher.Constraint("Equal", 11, 15),
    Sketcher.Constraint("Equal", 15, 17),
    Sketcher.Constraint("Equal", 17, 21),
    Sketcher.Constraint("Equal", 21, 23),
    Sketcher.Constraint("Equal", 23, 27),
    Sketcher.Constraint("Equal", 27, 29),
    Sketcher.Constraint("Equal", 29, 33),
    Sketcher.Constraint("Equal", 33, 35),
    Sketcher.Constraint("Equal", 35, 37),
    Sketcher.Constraint("Equal", 37, 41),
    Sketcher.Constraint("Equal", 41, 43),
    Sketcher.Constraint("Equal", 43, 47),
    Sketcher.Constraint("Equal", 47, 49),
    Sketcher.Constraint("Equal", 49, 53),
    Sketcher.Constraint("Equal", 53, 55),
    Sketcher.Constraint("Equal", 55, 59),
    Sketcher.Constraint("Equal", 59, 61),
    Sketcher.Constraint("Equal", 61, 65),
    Sketcher.Constraint("Equal", 65, 67),
    Sketcher.Constraint("Horizontal", 5, 3, 9, 3),
    Sketcher.Constraint("Horizontal", 17, 3, 21, 3),
    Sketcher.Constraint("Horizontal", 23, 3, 27, 3),
    Sketcher.Constraint("Horizontal", 29, 3, 33, 3),
    Sketcher.Constraint("Horizontal", 1, 3, 37, 3),
    Sketcher.Constraint("Horizontal", 43, 3, 47, 3),
    Sketcher.Constraint("Horizontal", 49, 3, 53, 3),
    Sketcher.Constraint("Horizontal", 61, 3, 65, 3),
    Sketcher.Constraint("Horizontal", 7, 2, 12, 2),
    Sketcher.Constraint("Horizontal", 19, 2, 24, 2),
    Sketcher.Constraint("Horizontal", 25, 2, 30, 2),
    Sketcher.Constraint("Horizontal", 39, 2, 44, 2),
    Sketcher.Constraint("Horizontal", 45, 2, 50, 2),
    Sketcher.Constraint("Horizontal", 51, 2, 56, 2),
    Sketcher.Constraint("Horizontal", 63, 2, 68, 2),
    Sketcher.Constraint("Vertical", 33, 3, 41, 3),
    Sketcher.Constraint("Vertical", 29, 3, 43, 3),
    Sketcher.Constraint("Vertical", 27, 3, 47, 3),
    Sketcher.Constraint("Vertical", 23, 3, 49, 3),
    Sketcher.Constraint("Vertical", 21, 3, 53, 3),
    Sketcher.Constraint("Vertical", 17, 3, 55, 3),
    Sketcher.Constraint("Vertical", 15, 3, 59, 3),
    Sketcher.Constraint("Vertical", 11, 3, 61, 3),
    Sketcher.Constraint("Vertical", 9, 3, 65, 3),
    Sketcher.Constraint("Vertical", 5, 3, 67, 3),
    Sketcher.Constraint("Equal", 4, 10),
    Sketcher.Constraint("Equal", 7, 13),
    Sketcher.Constraint("Equal", 13, 19),
    Sketcher.Constraint("Equal", 10, 22),
    Sketcher.Constraint("Equal", 19, 25),
    Sketcher.Constraint("Equal", 22, 28),
    Sketcher.Constraint("Equal", 25, 31),
    Sketcher.Constraint("Equal", 28, 34),
    Sketcher.Constraint("Equal", 31, 39),
    Sketcher.Constraint("Equal", 32, 40),
    Sketcher.Constraint("Equal", 14, 58),
    Sketcher.Constraint("Equal", 12, 62),
    Sketcher.Constraint("Radius", 1, Q("30 mm")),
    Sketcher.Constraint("DistanceX", 4, 2, 4, 1, Q("110 mm")),
    Sketcher.Constraint("DistanceX", 16, 2, 16, 1, Q("225 mm")),
    Sketcher.Constraint("DistanceY", 0, 1, 0, 2, Q("855 mm")),
    Sketcher.Constraint("DistanceY", 2, 2, 2, 1, Q("885 mm")),
    Sketcher.Constraint("DistanceY", 6, 1, 6, 2, Q("640 mm")),
    Sketcher.Constraint("DistanceY", 14, 2, 14, 1, Q("380 mm")),
    Sketcher.Constraint("DistanceY", 18, 1, 18, 2, Q("215 mm")),
    Sketcher.Constraint("DistanceX", -1, 1, 1, 3, Q("1420 mm")),
    Sketcher.Constraint("DistanceY", -1, 1, 1, 3, Q("980 mm")),
])
pocket5 = body.newObject("PartDesign::Pocket", "Pocket004")
pocket5.Profile = sketch6
pocket5.Length = 27
pocket5.Reversed = True

# Sketch on XZ plane
sketch7 = body.newObject("Sketcher::SketchObject", "Sketch006")
sketch7.AttachmentSupport = (doc.getObject("XZ_Plane"), [""])
sketch7.MapMode = "FlatFace"
sketch7.addGeometry([
    Part.Circle(V(95, 990, 0), V(0, 0, 1), 10),
    Part.Circle(V(1420, 990, 0), V(0, 0, 1), 10),
], False)
sketch7.addConstraint([
    Sketcher.Constraint("Equal", 0, 1),
    Sketcher.Constraint("Horizontal", 0, 3, 1, 3),
    Sketcher.Constraint("Diameter", 0, Q("20.5 mm")),
    Sketcher.Constraint("DistanceX", -1, 1, 0, 3, Q("95 mm")),
    Sketcher.Constraint("DistanceY", -1, 1, 0, 3, Q("990 mm")),
    Sketcher.Constraint("DistanceX", -1, 1, 1, 3, Q("1420 mm")),
])
pocket6 = body.newObject("PartDesign::Pocket", "Pocket005")
pocket6.Profile = sketch7
pocket6.Length = 45
pocket6.Reversed = True

doc.recompute()
